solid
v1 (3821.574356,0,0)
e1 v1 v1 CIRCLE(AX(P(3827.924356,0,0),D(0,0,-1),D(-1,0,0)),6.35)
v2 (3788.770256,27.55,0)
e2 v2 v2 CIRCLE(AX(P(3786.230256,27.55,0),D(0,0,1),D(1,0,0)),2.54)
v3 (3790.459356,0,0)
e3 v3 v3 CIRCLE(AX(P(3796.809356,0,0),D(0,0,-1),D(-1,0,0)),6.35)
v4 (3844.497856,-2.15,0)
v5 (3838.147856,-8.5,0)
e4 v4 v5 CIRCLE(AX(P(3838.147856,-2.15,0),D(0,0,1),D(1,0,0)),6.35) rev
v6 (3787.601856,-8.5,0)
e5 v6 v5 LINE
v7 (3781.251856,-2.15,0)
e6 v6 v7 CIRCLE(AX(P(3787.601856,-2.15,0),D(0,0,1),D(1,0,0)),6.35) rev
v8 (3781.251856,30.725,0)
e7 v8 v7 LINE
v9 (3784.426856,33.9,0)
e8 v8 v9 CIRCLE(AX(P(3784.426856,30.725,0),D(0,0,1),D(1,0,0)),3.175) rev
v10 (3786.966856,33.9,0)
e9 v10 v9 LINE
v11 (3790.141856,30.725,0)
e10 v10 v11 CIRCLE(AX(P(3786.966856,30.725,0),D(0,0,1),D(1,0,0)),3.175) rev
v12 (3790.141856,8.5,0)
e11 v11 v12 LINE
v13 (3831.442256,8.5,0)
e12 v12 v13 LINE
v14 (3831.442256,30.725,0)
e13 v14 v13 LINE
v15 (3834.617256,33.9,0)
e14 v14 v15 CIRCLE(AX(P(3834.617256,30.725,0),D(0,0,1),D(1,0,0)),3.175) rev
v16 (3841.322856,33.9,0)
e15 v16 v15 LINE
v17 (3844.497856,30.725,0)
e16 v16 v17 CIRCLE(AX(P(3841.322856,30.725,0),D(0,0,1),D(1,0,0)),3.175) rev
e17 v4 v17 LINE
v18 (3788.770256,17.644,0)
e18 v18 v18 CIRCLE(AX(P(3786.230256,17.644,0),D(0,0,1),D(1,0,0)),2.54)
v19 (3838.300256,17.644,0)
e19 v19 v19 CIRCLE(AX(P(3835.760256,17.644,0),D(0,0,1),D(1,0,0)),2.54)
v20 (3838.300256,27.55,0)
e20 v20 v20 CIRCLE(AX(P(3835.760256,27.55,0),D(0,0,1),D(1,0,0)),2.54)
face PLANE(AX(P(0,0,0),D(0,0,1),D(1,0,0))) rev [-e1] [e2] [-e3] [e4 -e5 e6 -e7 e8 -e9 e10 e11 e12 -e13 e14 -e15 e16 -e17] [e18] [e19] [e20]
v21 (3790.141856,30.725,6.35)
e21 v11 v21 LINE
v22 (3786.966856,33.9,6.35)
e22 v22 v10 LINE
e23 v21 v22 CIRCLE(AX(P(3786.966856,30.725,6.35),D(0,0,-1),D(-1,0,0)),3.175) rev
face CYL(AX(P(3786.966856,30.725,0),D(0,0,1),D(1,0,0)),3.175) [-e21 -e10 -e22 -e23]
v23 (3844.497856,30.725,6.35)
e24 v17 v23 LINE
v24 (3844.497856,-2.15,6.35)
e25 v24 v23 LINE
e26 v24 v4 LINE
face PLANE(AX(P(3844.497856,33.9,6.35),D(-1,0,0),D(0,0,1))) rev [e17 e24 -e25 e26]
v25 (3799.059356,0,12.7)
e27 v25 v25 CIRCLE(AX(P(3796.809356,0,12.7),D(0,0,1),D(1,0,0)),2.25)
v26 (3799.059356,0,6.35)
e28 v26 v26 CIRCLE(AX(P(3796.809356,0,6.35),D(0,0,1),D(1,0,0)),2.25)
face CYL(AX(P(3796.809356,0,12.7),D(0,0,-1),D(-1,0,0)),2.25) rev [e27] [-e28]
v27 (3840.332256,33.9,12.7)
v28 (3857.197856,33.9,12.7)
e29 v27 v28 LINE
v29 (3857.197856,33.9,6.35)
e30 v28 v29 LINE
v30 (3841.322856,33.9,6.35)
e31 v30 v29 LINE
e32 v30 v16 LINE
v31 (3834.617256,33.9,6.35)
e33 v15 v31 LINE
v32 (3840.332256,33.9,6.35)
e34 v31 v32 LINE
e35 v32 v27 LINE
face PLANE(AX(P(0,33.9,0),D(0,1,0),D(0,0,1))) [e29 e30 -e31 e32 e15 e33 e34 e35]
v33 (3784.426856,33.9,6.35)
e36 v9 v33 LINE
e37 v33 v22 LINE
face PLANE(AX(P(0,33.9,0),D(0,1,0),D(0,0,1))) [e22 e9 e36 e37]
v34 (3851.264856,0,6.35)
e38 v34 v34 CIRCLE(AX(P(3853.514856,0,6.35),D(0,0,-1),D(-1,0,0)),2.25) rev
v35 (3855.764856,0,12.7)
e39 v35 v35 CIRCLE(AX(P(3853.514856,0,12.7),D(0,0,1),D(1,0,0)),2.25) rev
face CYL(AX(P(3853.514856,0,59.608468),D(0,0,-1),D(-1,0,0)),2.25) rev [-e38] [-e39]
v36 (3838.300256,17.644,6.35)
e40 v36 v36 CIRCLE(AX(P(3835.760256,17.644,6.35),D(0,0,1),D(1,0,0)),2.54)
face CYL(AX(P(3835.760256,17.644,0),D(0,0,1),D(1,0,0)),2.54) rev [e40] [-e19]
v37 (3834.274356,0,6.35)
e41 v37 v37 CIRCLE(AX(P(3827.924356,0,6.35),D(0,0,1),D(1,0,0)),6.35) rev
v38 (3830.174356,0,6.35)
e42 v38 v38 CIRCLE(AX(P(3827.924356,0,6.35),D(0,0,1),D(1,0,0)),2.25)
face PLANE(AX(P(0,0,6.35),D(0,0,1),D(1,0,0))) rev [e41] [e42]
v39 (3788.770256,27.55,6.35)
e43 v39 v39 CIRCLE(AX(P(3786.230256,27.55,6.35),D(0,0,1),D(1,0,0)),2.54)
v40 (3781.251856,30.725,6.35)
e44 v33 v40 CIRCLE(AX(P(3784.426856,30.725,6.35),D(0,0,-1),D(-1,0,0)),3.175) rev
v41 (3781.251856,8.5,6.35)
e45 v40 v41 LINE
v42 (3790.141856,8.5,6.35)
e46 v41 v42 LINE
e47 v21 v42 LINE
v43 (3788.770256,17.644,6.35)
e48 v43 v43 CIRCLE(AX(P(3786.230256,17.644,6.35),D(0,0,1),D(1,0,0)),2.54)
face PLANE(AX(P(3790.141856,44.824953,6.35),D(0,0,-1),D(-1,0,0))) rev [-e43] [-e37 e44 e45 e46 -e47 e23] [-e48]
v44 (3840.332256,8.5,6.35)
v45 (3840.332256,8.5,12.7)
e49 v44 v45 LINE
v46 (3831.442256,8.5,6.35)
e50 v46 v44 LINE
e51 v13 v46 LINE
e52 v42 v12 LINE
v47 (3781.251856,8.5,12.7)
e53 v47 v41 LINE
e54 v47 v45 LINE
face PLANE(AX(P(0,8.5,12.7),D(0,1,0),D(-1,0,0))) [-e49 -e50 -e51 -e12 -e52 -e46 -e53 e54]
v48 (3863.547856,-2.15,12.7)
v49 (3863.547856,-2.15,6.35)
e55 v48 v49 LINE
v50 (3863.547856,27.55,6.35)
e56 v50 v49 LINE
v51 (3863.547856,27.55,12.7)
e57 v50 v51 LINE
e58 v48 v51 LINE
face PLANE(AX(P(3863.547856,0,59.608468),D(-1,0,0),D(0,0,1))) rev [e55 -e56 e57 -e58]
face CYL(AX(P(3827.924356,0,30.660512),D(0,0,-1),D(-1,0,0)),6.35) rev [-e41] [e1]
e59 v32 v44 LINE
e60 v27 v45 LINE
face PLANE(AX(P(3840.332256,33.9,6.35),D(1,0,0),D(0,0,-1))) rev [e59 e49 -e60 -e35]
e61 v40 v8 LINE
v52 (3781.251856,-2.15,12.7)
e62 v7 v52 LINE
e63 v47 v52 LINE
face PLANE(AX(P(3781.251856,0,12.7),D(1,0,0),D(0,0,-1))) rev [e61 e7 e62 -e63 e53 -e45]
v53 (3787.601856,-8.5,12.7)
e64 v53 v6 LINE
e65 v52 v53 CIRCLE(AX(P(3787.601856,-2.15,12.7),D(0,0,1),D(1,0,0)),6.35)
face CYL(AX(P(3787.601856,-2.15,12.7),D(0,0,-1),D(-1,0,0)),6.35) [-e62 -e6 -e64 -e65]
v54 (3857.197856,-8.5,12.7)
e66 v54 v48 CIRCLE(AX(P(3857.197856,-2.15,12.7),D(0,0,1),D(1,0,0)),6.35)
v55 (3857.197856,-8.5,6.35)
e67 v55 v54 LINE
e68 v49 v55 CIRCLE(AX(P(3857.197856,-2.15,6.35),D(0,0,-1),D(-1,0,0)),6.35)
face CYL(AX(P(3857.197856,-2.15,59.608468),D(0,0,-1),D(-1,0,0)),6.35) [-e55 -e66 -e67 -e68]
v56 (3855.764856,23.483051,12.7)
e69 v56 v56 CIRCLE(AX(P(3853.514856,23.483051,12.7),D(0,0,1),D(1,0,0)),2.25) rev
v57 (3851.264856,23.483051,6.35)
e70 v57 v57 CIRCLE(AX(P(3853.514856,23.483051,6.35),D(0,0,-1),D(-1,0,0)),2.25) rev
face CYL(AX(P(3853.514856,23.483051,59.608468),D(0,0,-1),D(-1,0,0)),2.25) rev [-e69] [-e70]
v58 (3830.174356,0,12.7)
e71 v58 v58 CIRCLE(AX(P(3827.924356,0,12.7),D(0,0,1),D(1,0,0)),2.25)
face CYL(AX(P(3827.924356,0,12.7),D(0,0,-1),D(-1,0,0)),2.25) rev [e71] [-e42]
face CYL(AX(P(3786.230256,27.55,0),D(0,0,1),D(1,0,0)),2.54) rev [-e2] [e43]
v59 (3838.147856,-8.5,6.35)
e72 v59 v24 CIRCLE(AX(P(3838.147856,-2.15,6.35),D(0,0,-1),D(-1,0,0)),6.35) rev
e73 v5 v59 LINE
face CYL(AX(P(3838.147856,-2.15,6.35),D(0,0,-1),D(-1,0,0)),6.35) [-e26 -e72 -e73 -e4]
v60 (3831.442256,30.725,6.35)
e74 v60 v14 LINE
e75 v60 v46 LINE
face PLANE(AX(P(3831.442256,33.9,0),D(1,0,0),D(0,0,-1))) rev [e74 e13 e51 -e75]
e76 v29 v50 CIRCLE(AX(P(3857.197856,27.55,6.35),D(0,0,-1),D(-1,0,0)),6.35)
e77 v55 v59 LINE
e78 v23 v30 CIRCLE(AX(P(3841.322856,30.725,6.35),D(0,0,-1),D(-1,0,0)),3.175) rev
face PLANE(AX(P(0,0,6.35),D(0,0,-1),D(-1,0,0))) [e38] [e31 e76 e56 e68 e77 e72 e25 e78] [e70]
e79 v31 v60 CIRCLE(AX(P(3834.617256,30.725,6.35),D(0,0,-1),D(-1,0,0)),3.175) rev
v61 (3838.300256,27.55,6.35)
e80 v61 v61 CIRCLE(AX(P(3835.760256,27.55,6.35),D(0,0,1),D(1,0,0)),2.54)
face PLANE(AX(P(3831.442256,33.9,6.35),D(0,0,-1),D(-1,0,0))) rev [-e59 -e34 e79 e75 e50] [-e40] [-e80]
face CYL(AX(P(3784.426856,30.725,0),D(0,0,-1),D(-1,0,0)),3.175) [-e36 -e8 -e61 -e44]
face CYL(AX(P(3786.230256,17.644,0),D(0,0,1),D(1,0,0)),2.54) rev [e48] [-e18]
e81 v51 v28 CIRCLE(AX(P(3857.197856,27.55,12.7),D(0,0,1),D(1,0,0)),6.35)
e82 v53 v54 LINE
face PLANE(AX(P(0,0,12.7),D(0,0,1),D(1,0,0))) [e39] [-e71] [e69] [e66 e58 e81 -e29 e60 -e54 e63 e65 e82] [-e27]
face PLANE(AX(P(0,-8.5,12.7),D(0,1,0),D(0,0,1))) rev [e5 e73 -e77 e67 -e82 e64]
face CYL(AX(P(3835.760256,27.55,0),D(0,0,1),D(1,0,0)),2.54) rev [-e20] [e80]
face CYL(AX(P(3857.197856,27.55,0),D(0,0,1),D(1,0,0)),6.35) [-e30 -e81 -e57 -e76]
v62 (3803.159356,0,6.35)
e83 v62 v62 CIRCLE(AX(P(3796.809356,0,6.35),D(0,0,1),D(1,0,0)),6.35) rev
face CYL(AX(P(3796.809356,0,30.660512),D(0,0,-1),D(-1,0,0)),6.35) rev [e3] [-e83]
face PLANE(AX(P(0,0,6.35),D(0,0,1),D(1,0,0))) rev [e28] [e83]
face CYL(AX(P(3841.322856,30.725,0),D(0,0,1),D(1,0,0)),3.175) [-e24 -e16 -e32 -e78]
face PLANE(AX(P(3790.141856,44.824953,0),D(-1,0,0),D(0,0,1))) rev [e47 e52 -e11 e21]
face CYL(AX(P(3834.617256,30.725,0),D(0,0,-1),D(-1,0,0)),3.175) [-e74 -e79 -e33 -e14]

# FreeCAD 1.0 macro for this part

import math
import FreeCAD as App
import Part
import Sketcher

V = App.Vector
Q = App.Units.Quantity


def edges_at(feature, points):
    """Names of the edges that pass closest to the given points."""
    edges = feature.Shape.Edges
    near = lambda p: min(range(len(edges)), key=lambda i: edges[i].distToShape(Part.Vertex(*p))[0])
    return sorted({f"Edge{near(p) + 1}" for p in points})


def add_polygon(sketch, points):
    """Adds a closed chain of lines whose ends are joined by coincident constraints."""
    first, n = sketch.GeometryCount, len(points)
    for a, b in zip(points, points[1:] + points[:1]):
        sketch.addGeometry(Part.LineSegment(App.Vector(*a, 0), App.Vector(*b, 0)), False)
    for i in range(n):
        sketch.addConstraint(Sketcher.Constraint("Coincident", first + i, 2, first + (i + 1) % n, 1))

doc = App.newDocument("Part")
body = doc.addObject("PartDesign::Body", "Body")

# Sketch on XY plane
sketch1 = doc.addObject("Sketcher::SketchObject", "Sketch")
body.addObject(sketch1)
sketch1.AttachmentSupport = (doc.XY_Plane, [""])
sketch1.MapMode = "FlatFace"
add_polygon(sketch1, [(3781.3, -8.5), (3843.5, -8.5), (3843.5, 8.5), (3781.3, 8.5)])  # lines 0-3
sketch1.addGeometry(Part.ArcOfCircle(Part.Circle(V(3796.8, 0, 0), V(0, 0, 1), 2.2), math.radians(29), math.radians(180)), False)  # 4
sketch1.addGeometry(Part.ArcOfCircle(Part.Circle(V(3796.8, 0, 0), V(0, 0, 1), 2.2), math.radians(0), math.radians(29)), False)  # 5
sketch1.addGeometry(Part.ArcOfCircle(Part.Circle(V(3796.8, 0, 0), V(0, 0, 1), 2.2), math.radians(-151), math.radians(0)), False)  # 6
sketch1.addGeometry(Part.ArcOfCircle(Part.Circle(V(3796.8, 0, 0), V(0, 0, 1), 2.2), math.radians(180), math.radians(209)), False)  # 7
sketch1.addGeometry(Part.ArcOfCircle(Part.Circle(V(3827.9, 0, 0), V(0, 0, 1), 2.2), math.radians(0), math.radians(151)), False)  # 8
sketch1.addGeometry(Part.ArcOfCircle(Part.Circle(V(3827.9, 0, 0), V(0, 0, 1), 2.2), math.radians(-29), math.radians(0)), False)  # 9
sketch1.addGeometry(Part.ArcOfCircle(Part.Circle(V(3827.9, 0, 0), V(0, 0, 1), 2.2), math.radians(180), math.radians(331)), False)  # 10
sketch1.addGeometry(Part.ArcOfCircle(Part.Circle(V(3827.9, 0, 0), V(0, 0, 1), 2.2), math.radians(151), math.radians(180)), False)  # 11
sketch1.addConstraint([
    Sketcher.Constraint("Tangent", 4, 1, 5, 2),
    Sketcher.Constraint("Tangent", 5, 1, 6, 2),
    Sketcher.Constraint("Tangent", 6, 1, 7, 2),
    Sketcher.Constraint("Tangent", 7, 1, 4, 2),
    Sketcher.Constraint("Tangent", 8, 1, 9, 2),
    Sketcher.Constraint("Tangent", 9, 1, 10, 2),
    Sketcher.Constraint("Tangent", 10, 1, 11, 2),
    Sketcher.Constraint("Tangent", 11, 1, 8, 2),
    Sketcher.Constraint("Horizontal", 0),
    Sketcher.Constraint("Vertical", 1),
    Sketcher.Constraint("Horizontal", 2),
    Sketcher.Constraint("Vertical", 3),
    Sketcher.Constraint("Equal", 4, 5),
    Sketcher.Constraint("Equal", 7, 8),
    Sketcher.Constraint("Equal", 8, 9),
    Sketcher.Constraint("PointOnObject", 4, 3, -1),
    Sketcher.Constraint("PointOnObject", 8, 3, -1),
    Sketcher.Constraint("PointOnObject", 5, 1, -1),
    Sketcher.Constraint("PointOnObject", 7, 1, -1),
    Sketcher.Constraint("PointOnObject", 8, 1, -1),
    Sketcher.Constraint("PointOnObject", 10, 1, -1),
    Sketcher.Constraint("Horizontal", 6, 1, 9, 1),
    Sketcher.Constraint("Horizontal", 4, 1, 11, 1),
    Sketcher.Constraint("DistanceX", 0, 1, 0, 2, Q("2.45 in")),
    Sketcher.Constraint("Radius", 4, 2.25),
    Sketcher.Constraint("DistanceX", 5, 3, 8, 3, Q("1.225 in")),
    Sketcher.Constraint("DistanceY", 1, 1, 1, 2, 17.0),
    Sketcher.Constraint("DistanceX", 9, 3, 0, 2, Q("0.6125 in")),
    Sketcher.Constraint("DistanceY", 0, 2, -1, 1, 8.5),
    Sketcher.Constraint("DistanceX", -1, 1, 4, 1, 3798.783868),
    Sketcher.Constraint("DistanceX", -1, 1, 9, 1, 3829.898868),
    Sketcher.Constraint("DistanceX", -1, 1, 4, 3, 3796.809356),
])
pad1 = doc.addObject("PartDesign::Pad", "Pad")
body.addObject(pad1)
pad1.Profile = sketch1
pad1.Length = Q("0.5 in")

# Sketch on XZ plane
sketch2 = doc.addObject("Sketcher::SketchObject", "Sketch001")
body.addObject(sketch2)
sketch2.AttachmentSupport = (doc.XZ_Plane, [""])
sketch2.MapMode = "FlatFace"
sketch2.AttachmentOffset = App.Placement(V(0, 0, -8.5), App.Rotation())
add_polygon(sketch2, [(3831.4, 0), (3831.4, 6.3), (3840.3, 6.3), (3840.3, 12.7), (3843.5, 12.7), (3843.5, 0)])  # lines 0-5
sketch2.addConstraint([
    Sketcher.Constraint("Vertical", 0),
    Sketcher.Constraint("Horizontal", 1),
    Sketcher.Constraint("Vertical", 2),
    Sketcher.Constraint("Horizontal", 3),
    Sketcher.Constraint("Vertical", 4),
    Sketcher.Constraint("Horizontal", 5),
    Sketcher.Constraint("PointOnObject", 4, 2, -1),
    Sketcher.Constraint("Equal", 0, 2),
    Sketcher.Constraint("DistanceY", 4, 2, 4, 1, Q("0.5 in")),
    Sketcher.Constraint("DistanceX", 1, 1, 1, 2, Q("0.35 in")),
    Sketcher.Constraint("DistanceX", 3, 1, 3, 2, Q("0.124 in")),
    Sketcher.Constraint("DistanceX", -1, 1, 0, 2, 3831.442256),
])
pad2 = doc.addObject("PartDesign::Pad", "Pad001")
body.addObject(pad2)
pad2.Profile = sketch2
pad2.Length = Q("1 in")
pad2.Reversed = True

# Sketch on XZ plane
sketch3 = doc.addObject("Sketcher::SketchObject", "Sketch002")
body.addObject(sketch3)
sketch3.AttachmentSupport = (doc.XZ_Plane, [""])
sketch3.MapMode = "FlatFace"
sketch3.AttachmentOffset = App.Placement(V(0, 0, -8.5), App.Rotation())
add_polygon(sketch3, [(3781, 0), (3781, 6), (3790, 6), (3790, 0)])  # lines 0-3
sketch3.addConstraint([
    Sketcher.Constraint("Vertical", 0),
    Sketcher.Constraint("Horizontal", 1),
    Sketcher.Constraint("Vertical", 2),
    Sketcher.Constraint("Horizontal", 3),
    Sketcher.Constraint("PointOnObject", 2, 2, -1),
    Sketcher.Constraint("DistanceX", 1, 1, 1, 2, Q("0.35 in")),
    Sketcher.Constraint("DistanceY", 0, 1, 0, 2, Q("0.25 in")),
    Sketcher.Constraint("DistanceX", -1, 1, 0, 2, 3781.251856),
])
pad3 = doc.addObject("PartDesign::Pad", "Pad002")
body.addObject(pad3)
pad3.Profile = sketch3
pad3.Length = Q("1 in")
pad3.Reversed = True

# Sketch on XY plane
sketch4 = doc.addObject("Sketcher::SketchObject", "Sketch003")
body.addObject(sketch4)
sketch4.AttachmentSupport = (doc.XY_Plane, [""])
sketch4.MapMode = "FlatFace"
sketch4.AttachmentOffset = App.Placement(V(0, 0, 0.25 * 25.4), App.Rotation())
sketch4.addGeometry([
    Part.Circle(V(3835.8, 27.6, 0), V(0, 0, 1), 2.5),
    Part.Circle(V(3835.8, 17.6, 0), V(0, 0, 1), 2.5),
    Part.Circle(V(3786.2, 17.6, 0), V(0, 0, 1), 2.5),
    Part.Circle(V(3786.2, 27.6, 0), V(0, 0, 1), 2.5),
], False)
sketch4.addConstraint([
    Sketcher.Constraint("Equal", 0, 1),
    Sketcher.Constraint("Equal", 1, 2),
    Sketcher.Constraint("Equal", 2, 3),
    Sketcher.Constraint("Horizontal", 1, 3, 2, 3),
    Sketcher.Constraint("Horizontal", 0, 3, 3, 3),
    Sketcher.Constraint("Vertical", 0, 3, 1, 3),
    Sketcher.Constraint("Vertical", 2, 3, 3, 3),
    Sketcher.Constraint("Diameter", 0, Q("0.2 in")),
    Sketcher.Constraint("DistanceY", 1, 3, 0, 3, Q("0.39 in")),
    Sketcher.Constraint("DistanceX", 2, 3, 1, 3, Q("1.95 in")),
    Sketcher.Constraint("DistanceY", -1, 1, 0, 3, 27.55),
    Sketcher.Constraint("DistanceX", -1, 1, 0, 3, 3835.760256),
])
pocket1 = doc.addObject("PartDesign::Pocket", "Pocket")
body.addObject(pocket1)
pocket1.Profile = sketch4
pocket1.Type = "ThroughAll"

# Sketch on XY plane
sketch5 = doc.addObject("Sketcher::SketchObject", "Sketch004")
body.addObject(sketch5)
sketch5.AttachmentSupport = (doc.XY_Plane, [""])
sketch5.MapMode = "FlatFace"
add_polygon(sketch5, [(3863.5, 33.9), (3863.5, -8.5), (3843.5, -8.5), (3843.5, 33.9)])  # lines 0-3
sketch5.addGeometry(Part.Circle(V(3853.5, 0, 0), V(0, 0, 1), 2.2), False)  # 4
sketch5.addGeometry(Part.Circle(V(3853.5, 23.5, 0), V(0, 0, 1), 2.2), False)  # 5
sketch5.addConstraint([
    Sketcher.Constraint("Vertical", 0),
    Sketcher.Constraint("Horizontal", 1),
    Sketcher.Constraint("Vertical", 2),
    Sketcher.Constraint("Horizontal", 3),
    Sketcher.Constraint("Equal", 4, 5),
    Sketcher.Constraint("PointOnObject", 4, 3, -1),
    Sketcher.Constraint("Vertical", 4, 3, 5, 3),
    Sketcher.Constraint("DistanceX", 1, 2, 1, 1, Q("0.79 in")),
    Sketcher.Constraint("Diameter", 4, 4.5),
    Sketcher.Constraint("DistanceX", 4, 3, 0, 2, Q("0.395 in")),
    Sketcher.Constraint("DistanceY", 0, 2, 0, 1, 42.4),
    Sketcher.Constraint("DistanceY", 0, 2, -1, 1, 8.5),
    Sketcher.Constraint("DistanceY", -1, 1, 5, 3, 23.483051),
    Sketcher.Constraint("DistanceX", -1, 1, 4, 3, 3853.514856),
])
pad4 = doc.addObject("PartDesign::Pad", "Pad003")
body.addObject(pad4)
pad4.Profile = sketch5
pad4.Length = Q("0.5 in")

# Sketch on XY plane
sketch6 = doc.addObject("Sketcher::SketchObject", "Sketch005")
body.addObject(sketch6)
sketch6.AttachmentSupport = (doc.XY_Plane, [""])
sketch6.MapMode = "FlatFace"
sketch6.addGeometry([
    Part.Circle(V(3827.9, 0, 0), V(0, 0, 1), 6.3),
    Part.Circle(V(3827.9, 0, 0), V(0, 0, 1), 2.2),
    Part.Circle(V(3796.8, 0, 0), V(0, 0, 1), 6.3),
    Part.Circle(V(3796.8, 0, 0), V(0, 0, 1), 2.2),
], False)
sketch6.addConstraint([
    Sketcher.Constraint("Coincident", 1, 3, 0, 3),
    Sketcher.Constraint("Coincident", 3, 3, 2, 3),
    Sketcher.Constraint("Equal", 0, 2),
    Sketcher.Constraint("Equal", 1, 3),
    Sketcher.Constraint("PointOnObject", 0, 3, -1),
    Sketcher.Constraint("PointOnObject", 2, 3, -1),
    Sketcher.Constraint("Diameter", 0, Q("0.5 in")),
    Sketcher.Constraint("Diameter", 1, 4.5),
    Sketcher.Constraint("DistanceX", 2, 3, 0, 3, Q("1.225 in")),
    Sketcher.Constraint("DistanceX", -1, 1, 0, 3, 3827.924356),
])
pocket2 = doc.addObject("PartDesign::Pocket", "Pocket001")
body.addObject(pocket2)
pocket2.Profile = sketch6
pocket2.Length = Q("0.25 in")
pocket2.Reversed = True

# Sketch on XY plane
sketch7 = doc.addObject("Sketcher::SketchObject", "Sketch006")
body.addObject(sketch7)
sketch7.AttachmentSupport = (doc.XY_Plane, [""])
sketch7.MapMode = "FlatFace"
add_polygon(sketch7, [(3864, 34), (3864, -8), (3844, -8), (3844, 34)])  # lines 0-3
sketch7.addConstraint([
    Sketcher.Constraint("Vertical", 0),
    Sketcher.Constraint("Horizontal", 1),
    Sketcher.Constraint("Vertical", 2),
    Sketcher.Constraint("Horizontal", 3),
    Sketcher.Constraint("DistanceX", 1, 2, 1, 1, Q("0.75 in")),
    Sketcher.Constraint("DistanceY", 0, 2, 0, 1, 42.4),
    Sketcher.Constraint("DistanceY", 0, 2, -1, 1, 8.5),
    Sketcher.Constraint("DistanceX", -1, 1, 0, 2, 3863.547856),
])
pocket3 = doc.addObject("PartDesign::Pocket", "Pocket002")
body.addObject(pocket3)
pocket3.Profile = sketch7
pocket3.Length = Q("0.25 in")
pocket3.Reversed = True
doc.recompute()

fillet = doc.addObject("PartDesign::Fillet", "Fillet")
body.addObject(fillet)
fillet.Base = (pocket3, edges_at(pocket3, [
    (3844.498, -8.5, 3.175),
    (3781.252, -8.5, 6.35),
    (3863.548, 33.9, 9.525),
    (3863.548, -8.5, 9.525),
]))
fillet.Radius = Q("0.25 in")
doc.recompute()

fillet2 = doc.addObject("PartDesign::Fillet", "Fillet001")
body.addObject(fillet2)
fillet2.Base = (fillet, edges_at(fillet, [
    (3844.498, 33.9, 3.175),
    (3831.442, 33.9, 3.175),
    (3781.252, 33.9, 3.175),
    (3790.142, 33.9, 3.175),
]))
fillet2.Radius = Q("0.125 in")

doc.recompute()
